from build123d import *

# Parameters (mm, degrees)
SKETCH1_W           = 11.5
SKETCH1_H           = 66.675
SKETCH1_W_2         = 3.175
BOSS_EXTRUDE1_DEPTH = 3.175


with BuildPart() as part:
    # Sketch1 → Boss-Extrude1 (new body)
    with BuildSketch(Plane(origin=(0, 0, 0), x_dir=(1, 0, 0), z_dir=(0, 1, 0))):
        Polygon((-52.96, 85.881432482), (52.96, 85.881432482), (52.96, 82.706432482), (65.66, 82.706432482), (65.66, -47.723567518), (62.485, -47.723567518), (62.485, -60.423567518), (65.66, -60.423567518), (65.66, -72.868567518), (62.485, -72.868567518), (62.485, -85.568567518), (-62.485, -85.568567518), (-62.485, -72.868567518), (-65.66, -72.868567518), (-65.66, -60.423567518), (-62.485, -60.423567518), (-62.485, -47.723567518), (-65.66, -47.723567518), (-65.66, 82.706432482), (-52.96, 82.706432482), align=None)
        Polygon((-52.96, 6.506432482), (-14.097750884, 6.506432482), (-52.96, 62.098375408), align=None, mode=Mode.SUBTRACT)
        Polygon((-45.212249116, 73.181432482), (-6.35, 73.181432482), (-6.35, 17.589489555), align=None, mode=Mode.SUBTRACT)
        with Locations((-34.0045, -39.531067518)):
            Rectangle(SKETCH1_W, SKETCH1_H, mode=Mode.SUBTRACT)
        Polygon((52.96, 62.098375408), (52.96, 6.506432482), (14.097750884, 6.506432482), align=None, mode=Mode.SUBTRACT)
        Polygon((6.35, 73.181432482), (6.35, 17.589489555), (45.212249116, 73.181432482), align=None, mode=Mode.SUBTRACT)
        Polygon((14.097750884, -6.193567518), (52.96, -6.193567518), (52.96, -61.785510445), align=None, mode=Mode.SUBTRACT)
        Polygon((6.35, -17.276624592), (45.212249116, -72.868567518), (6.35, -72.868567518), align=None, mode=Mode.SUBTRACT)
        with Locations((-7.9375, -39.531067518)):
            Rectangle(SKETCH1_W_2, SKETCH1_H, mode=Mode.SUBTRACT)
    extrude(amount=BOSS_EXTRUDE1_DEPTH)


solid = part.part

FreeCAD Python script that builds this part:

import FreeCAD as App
import Part
import Sketcher
from FreeCAD import Vector
Q = App.Units.Quantity

doc = App.newDocument("Part")
body = doc.addObject("PartDesign::Body", "Body")

# Sketch on XZ plane
sketch1 = body.newObject("Sketcher::SketchObject", "Sketch")
sketch1.AttachmentSupport = (doc.getObject("XZ_Plane"), [""])
sketch1.MapMode = "FlatFace"
sketch1.addGeometry([
    Part.LineSegment(Vector(53, -85.9, 0), Vector(-53, -85.9, 0)),  # 0
    Part.LineSegment(Vector(-53, -85.9, 0), Vector(-53, -82.7, 0)),  # 1
    Part.LineSegment(Vector(-53, -82.7, 0), Vector(-65.7, -82.7, 0)),  # 2
    Part.LineSegment(Vector(-65.7, -82.7, 0), Vector(-65.7, 47.7, 0)),  # 3
    Part.LineSegment(Vector(-65.7, 47.7, 0), Vector(-62.5, 47.7, 0)),  # 4
    Part.LineSegment(Vector(-62.5, 47.7, 0), Vector(-62.5, 60.4, 0)),  # 5
    Part.LineSegment(Vector(-62.5, 60.4, 0), Vector(-65.7, 60.4, 0)),  # 6
    Part.LineSegment(Vector(-65.7, 60.4, 0), Vector(-65.7, 72.9, 0)),  # 7
    Part.LineSegment(Vector(-65.7, 72.9, 0), Vector(-62.5, 72.9, 0)),  # 8
    Part.LineSegment(Vector(-62.5, 72.9, 0), Vector(-62.5, 85.6, 0)),  # 9
    Part.LineSegment(Vector(-62.5, 85.6, 0), Vector(62.5, 85.6, 0)),  # 10
    Part.LineSegment(Vector(62.5, 85.6, 0), Vector(62.5, 72.9, 0)),  # 11
    Part.LineSegment(Vector(62.5, 72.9, 0), Vector(65.7, 72.9, 0)),  # 12
    Part.LineSegment(Vector(65.7, 72.9, 0), Vector(65.7, 60.4, 0)),  # 13
    Part.LineSegment(Vector(65.7, 60.4, 0), Vector(62.5, 60.4, 0)),  # 14
    Part.LineSegment(Vector(62.5, 60.4, 0), Vector(62.5, 47.7, 0)),  # 15
    Part.LineSegment(Vector(62.5, 47.7, 0), Vector(65.7, 47.7, 0)),  # 16
    Part.LineSegment(Vector(65.7, 47.7, 0), Vector(65.7, -82.7, 0)),  # 17
    Part.LineSegment(Vector(65.7, -82.7, 0), Vector(53, -82.7, 0)),  # 18
    Part.LineSegment(Vector(53, -82.7, 0), Vector(53, -85.9, 0)),  # 19
    Part.LineSegment(Vector(6.3, 17.3, 0), Vector(45.2, 72.9, 0)),  # 20
    Part.LineSegment(Vector(45.2, 72.9, 0), Vector(6.3, 72.9, 0)),  # 21
    Part.LineSegment(Vector(6.3, 72.9, 0), Vector(6.3, 17.3, 0)),  # 22
    Part.LineSegment(Vector(14.1, 6.2, 0), Vector(53, 6.2, 0)),  # 23
    Part.LineSegment(Vector(53, 6.2, 0), Vector(53, 61.8, 0)),  # 24
    Part.LineSegment(Vector(53, 61.8, 0), Vector(14.1, 6.2, 0)),  # 25
    Part.LineSegment(Vector(-9.5, 72.9, 0), Vector(-9.5, 6.2, 0)),  # 26
    Part.LineSegment(Vector(-9.5, 6.2, 0), Vector(-6.3, 6.2, 0)),  # 27
    Part.LineSegment(Vector(-6.3, 6.2, 0), Vector(-6.3, 72.9, 0)),  # 28
    Part.LineSegment(Vector(-6.3, 72.9, 0), Vector(-9.5, 72.9, 0)),  # 29
    Part.LineSegment(Vector(-39.8, 72.9, 0), Vector(-39.8, 6.2, 0)),  # 30
    Part.LineSegment(Vector(-39.8, 6.2, 0), Vector(-28.3, 6.2, 0)),  # 31
    Part.LineSegment(Vector(-28.3, 6.2, 0), Vector(-28.3, 72.9, 0)),  # 32
    Part.LineSegment(Vector(-28.3, 72.9, 0), Vector(-39.8, 72.9, 0)),  # 33
    Part.LineSegment(Vector(53, -62.1, 0), Vector(53, -6.5, 0)),  # 34
    Part.LineSegment(Vector(53, -6.5, 0), Vector(14.1, -6.5, 0)),  # 35
    Part.LineSegment(Vector(14.1, -6.5, 0), Vector(53, -62.1, 0)),  # 36
    Part.LineSegment(Vector(6.3, -73.2, 0), Vector(45.2, -73.2, 0)),  # 37
    Part.LineSegment(Vector(45.2, -73.2, 0), Vector(6.3, -17.6, 0)),  # 38
    Part.LineSegment(Vector(6.3, -17.6, 0), Vector(6.3, -73.2, 0)),  # 39
    Part.LineSegment(Vector(-53, -6.5, 0), Vector(-53, -62.1, 0)),  # 40
    Part.LineSegment(Vector(-53, -62.1, 0), Vector(-14.1, -6.5, 0)),  # 41
    Part.LineSegment(Vector(-14.1, -6.5, 0), Vector(-53, -6.5, 0)),  # 42
    Part.LineSegment(Vector(-45.2, -73.2, 0), Vector(-6.3, -73.2, 0)),  # 43
    Part.LineSegment(Vector(-6.3, -73.2, 0), Vector(-6.3, -17.6, 0)),  # 44
    Part.LineSegment(Vector(-6.3, -17.6, 0), Vector(-45.2, -73.2, 0)),  # 45
], False)
sketch1.addConstraint([
    Sketcher.Constraint("Coincident", 0, 2, 1, 1),
    Sketcher.Constraint("Coincident", 1, 2, 2, 1),
    Sketcher.Constraint("Coincident", 2, 2, 3, 1),
    Sketcher.Constraint("Coincident", 3, 2, 4, 1),
    Sketcher.Constraint("Coincident", 4, 2, 5, 1),
    Sketcher.Constraint("Coincident", 5, 2, 6, 1),
    Sketcher.Constraint("Coincident", 6, 2, 7, 1),
    Sketcher.Constraint("Coincident", 7, 2, 8, 1),
    Sketcher.Constraint("Coincident", 8, 2, 9, 1),
    Sketcher.Constraint("Coincident", 9, 2, 10, 1),
    Sketcher.Constraint("Coincident", 10, 2, 11, 1),
    Sketcher.Constraint("Coincident", 11, 2, 12, 1),
    Sketcher.Constraint("Coincident", 12, 2, 13, 1),
    Sketcher.Constraint("Coincident", 13, 2, 14, 1),
    Sketcher.Constraint("Coincident", 14, 2, 15, 1),
    Sketcher.Constraint("Coincident", 15, 2, 16, 1),
    Sketcher.Constraint("Coincident", 16, 2, 17, 1),
    Sketcher.Constraint("Coincident", 17, 2, 18, 1),
    Sketcher.Constraint("Coincident", 18, 2, 19, 1),
    Sketcher.Constraint("Coincident", 19, 2, 0, 1),
    Sketcher.Constraint("Coincident", 20, 2, 21, 1),
    Sketcher.Constraint("Coincident", 21, 2, 22, 1),
    Sketcher.Constraint("Coincident", 22, 2, 20, 1),
    Sketcher.Constraint("Coincident", 23, 2, 24, 1),
    Sketcher.Constraint("Coincident", 24, 2, 25, 1),
    Sketcher.Constraint("Coincident", 25, 2, 23, 1),
    Sketcher.Constraint("Coincident", 26, 2, 27, 1),
    Sketcher.Constraint("Coincident", 27, 2, 28, 1),
    Sketcher.Constraint("Coincident", 28, 2, 29, 1),
    Sketcher.Constraint("Coincident", 29, 2, 26, 1),
    Sketcher.Constraint("Coincident", 30, 2, 31, 1),
    Sketcher.Constraint("Coincident", 31, 2, 32, 1),
    Sketcher.Constraint("Coincident", 32, 2, 33, 1),
    Sketcher.Constraint("Coincident", 33, 2, 30, 1),
    Sketcher.Constraint("Coincident", 34, 2, 35, 1),
    Sketcher.Constraint("Coincident", 35, 2, 36, 1),
    Sketcher.Constraint("Coincident", 36, 2, 34, 1),
    Sketcher.Constraint("Coincident", 37, 2, 38, 1),
    Sketcher.Constraint("Coincident", 38, 2, 39, 1),
    Sketcher.Constraint("Coincident", 39, 2, 37, 1),
    Sketcher.Constraint("Coincident", 40, 2, 41, 1),
    Sketcher.Constraint("Coincident", 41, 2, 42, 1),
    Sketcher.Constraint("Coincident", 42, 2, 40, 1),
    Sketcher.Constraint("Coincident", 43, 2, 44, 1),
    Sketcher.Constraint("Coincident", 44, 2, 45, 1),
    Sketcher.Constraint("Coincident", 45, 2, 43, 1),
    Sketcher.Constraint("Horizontal", 0),
    Sketcher.Constraint("Vertical", 1),
    Sketcher.Constraint("Horizontal", 2),
    Sketcher.Constraint("Vertical", 3),
    Sketcher.Constraint("Horizontal", 4),
    Sketcher.Constraint("Vertical", 5),
    Sketcher.Constraint("Horizontal", 6),
    Sketcher.Constraint("Vertical", 7),
    Sketcher.Constraint("Horizontal", 8),
    Sketcher.Constraint("Vertical", 9),
    Sketcher.Constraint("Horizontal", 10),
    Sketcher.Constraint("Vertical", 11),
    Sketcher.Constraint("Horizontal", 12),
    Sketcher.Constraint("Vertical", 13),
    Sketcher.Constraint("Horizontal", 14),
    Sketcher.Constraint("Vertical", 15),
    Sketcher.Constraint("Horizontal", 16),
    Sketcher.Constraint("Vertical", 17),
    Sketcher.Constraint("Horizontal", 18),
    Sketcher.Constraint("Vertical", 19),
    Sketcher.Constraint("Horizontal", 21),
    Sketcher.Constraint("Vertical", 22),
    Sketcher.Constraint("Horizontal", 23),
    Sketcher.Constraint("Vertical", 24),
    Sketcher.Constraint("Vertical", 26),
    Sketcher.Constraint("Horizontal", 27),
    Sketcher.Constraint("Vertical", 28),
    Sketcher.Constraint("Horizontal", 29),
    Sketcher.Constraint("Vertical", 30),
    Sketcher.Constraint("Horizontal", 31),
    Sketcher.Constraint("Vertical", 32),
    Sketcher.Constraint("Horizontal", 33),
    Sketcher.Constraint("Vertical", 34),
    Sketcher.Constraint("Horizontal", 35),
    Sketcher.Constraint("Horizontal", 37),
    Sketcher.Constraint("Vertical", 39),
    Sketcher.Constraint("Vertical", 40),
    Sketcher.Constraint("Horizontal", 42),
    Sketcher.Constraint("Horizontal", 43),
    Sketcher.Constraint("Vertical", 44),
    Sketcher.Constraint("Symmetric", 8, 2, 11, 2, -2),
    Sketcher.Constraint("Symmetric", 6, 2, 13, 2, -2),
    Sketcher.Constraint("Symmetric", 4, 2, 15, 2, -2),
    Sketcher.Constraint("Symmetric", 2, 2, 17, 2, -2),
    Sketcher.Constraint("Symmetric", 21, 2, 28, 2, -2),
    Sketcher.Constraint("Symmetric", 36, 2, 40, 2, -2),
    Sketcher.Constraint("Symmetric", 35, 2, 41, 2, -2),
    Sketcher.Constraint("Symmetric", 39, 2, 43, 2, -2),
    Sketcher.Constraint("Parallel", 20, 25),
    Sketcher.Constraint("Parallel", 36, 38),
    Sketcher.Constraint("Parallel", 25, 41),
    Sketcher.Constraint("Parallel", 41, 45),
    Sketcher.Constraint("Horizontal", 12, 2, 20, 2),
    Sketcher.Constraint("Horizontal", 25, 2, 26, 2),
    Sketcher.Constraint("Horizontal", 27, 2, 30, 2),
    Sketcher.Constraint("Horizontal", 29, 2, 32, 2),
    Sketcher.Constraint("Horizontal", 38, 2, 44, 2),
    Sketcher.Constraint("Vertical", 3, 2, 6, 2),
    Sketcher.Constraint("Vertical", 5, 2, 8, 2),
    Sketcher.Constraint("Vertical", 19, 2, 23, 2),
    Sketcher.Constraint("Vertical", 24, 2, 34, 2),
    Sketcher.Constraint("Vertical", 25, 2, 35, 2),
    Sketcher.Constraint("Vertical", 20, 2, 37, 2),
    Sketcher.Constraint("Vertical", 22, 2, 38, 2),
    Sketcher.Constraint("Vertical", 1, 2, 40, 2),
    Sketcher.Constraint("Equal", 21, 23),
    Sketcher.Constraint("Equal", 16, 27),
    Sketcher.Constraint("Equal", 29, 1),
    Sketcher.Constraint("Equal", 18, 5),
    Sketcher.Constraint("Equal", 5, 9),
    Sketcher.Constraint("DistanceX", 2, 2, 2, 1, Q("0.5 in")),
    Sketcher.Constraint("DistanceX", 27, 2, 22, 2, Q("0.5 in")),
    Sketcher.Constraint("DistanceY", 34, 2, 23, 2, Q("0.5 in")),
    Sketcher.Constraint("DistanceY", 19, 2, 37, 2, Q("0.5 in")),
    Sketcher.Constraint("DistanceX", 4, 1, 4, 2, Q("0.125 in")),
    Sketcher.Constraint("DistanceY", 26, 2, 26, 1, Q("2.625 in")),
    Sketcher.Constraint("DistanceY", 2, 2, 7, 2, Q("6.125 in")),
    Sketcher.Constraint("DistanceX", 0, 2, 0, 1, Q("105.92 mm")),
    Sketcher.Constraint("DistanceX", 31, 1, 31, 2, Q("11.5 mm")),
    Sketcher.Constraint("DistanceY", 3, 1, 3, 2, Q("130.43 mm")),
    Sketcher.Constraint("DistanceX", 21, 2, 21, 1, Q("38.862249 mm")),
    Sketcher.Constraint("DistanceX", 30, 2, -1, 1, Q("39.7545 mm")),
    Sketcher.Constraint("DistanceY", 22, 2, 22, 1, Q("55.591943 mm")),
    Sketcher.Constraint("DistanceY", -1, 1, 24, 2, Q("61.78551 mm")),
])
pad1 = body.newObject("PartDesign::Pad", "Pad")
pad1.Profile = sketch1
pad1.Length = Q("0.125 in")
pad1.Reversed = True

doc.recompute()
